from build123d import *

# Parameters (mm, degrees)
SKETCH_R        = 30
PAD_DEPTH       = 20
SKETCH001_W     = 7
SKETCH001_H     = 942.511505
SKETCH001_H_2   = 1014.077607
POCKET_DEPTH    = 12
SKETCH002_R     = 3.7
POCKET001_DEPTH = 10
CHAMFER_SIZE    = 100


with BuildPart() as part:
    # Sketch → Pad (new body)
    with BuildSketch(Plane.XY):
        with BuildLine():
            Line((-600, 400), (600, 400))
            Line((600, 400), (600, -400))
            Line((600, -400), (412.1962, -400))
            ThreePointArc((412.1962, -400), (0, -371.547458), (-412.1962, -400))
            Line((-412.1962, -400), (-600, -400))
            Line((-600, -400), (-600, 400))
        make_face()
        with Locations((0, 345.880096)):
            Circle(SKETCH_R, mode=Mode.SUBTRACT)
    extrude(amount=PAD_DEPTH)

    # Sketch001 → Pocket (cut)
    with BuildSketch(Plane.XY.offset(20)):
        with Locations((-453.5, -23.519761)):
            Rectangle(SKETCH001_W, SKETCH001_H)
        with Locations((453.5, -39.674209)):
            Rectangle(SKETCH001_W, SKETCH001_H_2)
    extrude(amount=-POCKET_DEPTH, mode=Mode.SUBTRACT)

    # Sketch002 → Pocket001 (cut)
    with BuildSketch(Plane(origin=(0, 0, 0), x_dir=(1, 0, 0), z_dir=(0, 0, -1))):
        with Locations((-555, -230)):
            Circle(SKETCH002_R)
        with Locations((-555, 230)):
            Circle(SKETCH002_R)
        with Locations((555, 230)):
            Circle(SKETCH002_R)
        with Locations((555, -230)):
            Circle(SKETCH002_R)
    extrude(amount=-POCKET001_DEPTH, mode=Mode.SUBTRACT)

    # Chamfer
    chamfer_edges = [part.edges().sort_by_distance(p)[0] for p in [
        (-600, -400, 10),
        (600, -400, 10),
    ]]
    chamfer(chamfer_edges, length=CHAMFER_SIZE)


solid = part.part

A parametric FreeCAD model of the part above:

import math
import FreeCAD as App
import Part
import Sketcher

V = App.Vector
Q = App.Units.Quantity


def edges_at(feature, points):
    """Names of the edges that pass closest to the given points."""
    edges = feature.Shape.Edges
    near = lambda p: min(range(len(edges)), key=lambda i: edges[i].distToShape(Part.Vertex(*p))[0])
    return sorted({f"Edge{near(p) + 1}" for p in points})

doc = App.newDocument("Part")
body = doc.addObject("PartDesign::Body", "Body")

# Sketch on XY plane
sketch1 = body.newObject("Sketcher::SketchObject", "Sketch")
sketch1.AttachmentSupport = (doc.getObject("XY_Plane"), [""])
sketch1.MapMode = "FlatFace"
sketch1.addGeometry(Part.LineSegment(V(600, 400, 0), V(-600, 400, 0)), False)
sketch1.addGeometry(Part.LineSegment(V(-600, 400, 0), V(-600, -400, 0)), False)
sketch1.addGeometry(Part.LineSegment(V(-600, -400, 0), V(-412, -400, 0)), False)
sketch1.addGeometry(Part.ArcOfCircle(Part.Circle(V(0, -3372, 0), V(0, 0, 1), 3000), math.radians(82.1), math.radians(97.9)), False)
sketch1.addGeometry(Part.LineSegment(V(412, -400, 0), V(600, -400, 0)), False)
sketch1.addGeometry(Part.LineSegment(V(600, -400, 0), V(600, 400, 0)), False)
sketch1.addGeometry(Part.Circle(V(0, 346, 0), V(0, 0, 1), 30), False)
sketch1.addConstraint(Sketcher.Constraint("Coincident", 0, 2, 1, 1))
sketch1.addConstraint(Sketcher.Constraint("Coincident", 1, 2, 2, 1))
sketch1.addConstraint(Sketcher.Constraint("Coincident", 2, 2, 3, 2))
sketch1.addConstraint(Sketcher.Constraint("Coincident", 3, 1, 4, 1))
sketch1.addConstraint(Sketcher.Constraint("Coincident", 4, 2, 5, 1))
sketch1.addConstraint(Sketcher.Constraint("Coincident", 5, 2, 0, 1))
sketch1.addConstraint(Sketcher.Constraint("Horizontal", 0))
sketch1.addConstraint(Sketcher.Constraint("Vertical", 1))
sketch1.addConstraint(Sketcher.Constraint("Horizontal", 2))
sketch1.addConstraint(Sketcher.Constraint("Horizontal", 4))
sketch1.addConstraint(Sketcher.Constraint("Vertical", 5))
sketch1.addConstraint(Sketcher.Constraint("Symmetric", 0, 2, 4, 2, -1, 1))
sketch1.addConstraint(Sketcher.Constraint("PointOnObject", 3, 3, -2))
sketch1.addConstraint(Sketcher.Constraint("PointOnObject", 6, 3, -2))
sketch1.addConstraint(Sketcher.Constraint("Equal", 2, 4))
sketch1.addConstraint(Sketcher.Constraint("Diameter", 6, Q("60 mm")))
sketch1.addConstraint(Sketcher.Constraint("DistanceX", 0, 2, 0, 1, Q("1200 mm")))
sketch1.addConstraint(Sketcher.Constraint("DistanceY", 1, 2, 1, 1, Q("800 mm")))
sketch1.addConstraint(Sketcher.Constraint("DistanceX", 2, 1, 2, 2, Q("187.8038 mm")))
sketch1.addConstraint(Sketcher.Constraint("Radius", 3, Q("3000.000043 mm")))
sketch1.addConstraint(Sketcher.Constraint("DistanceY", -1, 1, 6, 3, Q("345.880096 mm")))
pad1 = body.newObject("PartDesign::Pad", "Pad")
pad1.Profile = sketch1
pad1.Length = 20

# Sketch on XY plane
sketch2 = body.newObject("Sketcher::SketchObject", "Sketch001")
sketch2.AttachmentSupport = (doc.getObject("XY_Plane"), [""])
sketch2.MapMode = "FlatFace"
sketch2.AttachmentOffset = App.Placement(V(0, 0, 20), App.Rotation())
sketch2.addGeometry(Part.LineSegment(V(-457, 448, 0), V(-457, -495, 0)), False)
sketch2.addGeometry(Part.LineSegment(V(-457, -495, 0), V(-450, -495, 0)), False)
sketch2.addGeometry(Part.LineSegment(V(-450, -495, 0), V(-450, 448, 0)), False)
sketch2.addGeometry(Part.LineSegment(V(-450, 448, 0), V(-457, 448, 0)), False)
sketch2.addGeometry(Part.LineSegment(V(450, 467, 0), V(450, -547, 0)), False)
sketch2.addGeometry(Part.LineSegment(V(450, -547, 0), V(457, -547, 0)), False)
sketch2.addGeometry(Part.LineSegment(V(457, -547, 0), V(457, 467, 0)), False)
sketch2.addGeometry(Part.LineSegment(V(457, 467, 0), V(450, 467, 0)), False)
sketch2.addConstraint(Sketcher.Constraint("Coincident", 0, 2, 1, 1))
sketch2.addConstraint(Sketcher.Constraint("Coincident", 1, 2, 2, 1))
sketch2.addConstraint(Sketcher.Constraint("Coincident", 2, 2, 3, 1))
sketch2.addConstraint(Sketcher.Constraint("Coincident", 3, 2, 0, 1))
sketch2.addConstraint(Sketcher.Constraint("Coincident", 4, 2, 5, 1))
sketch2.addConstraint(Sketcher.Constraint("Coincident", 5, 2, 6, 1))
sketch2.addConstraint(Sketcher.Constraint("Coincident", 6, 2, 7, 1))
sketch2.addConstraint(Sketcher.Constraint("Coincident", 7, 2, 4, 1))
sketch2.addConstraint(Sketcher.Constraint("Vertical", 0))
sketch2.addConstraint(Sketcher.Constraint("Horizontal", 1))
sketch2.addConstraint(Sketcher.Constraint("Vertical", 2))
sketch2.addConstraint(Sketcher.Constraint("Horizontal", 3))
sketch2.addConstraint(Sketcher.Constraint("Vertical", 4))
sketch2.addConstraint(Sketcher.Constraint("Horizontal", 5))
sketch2.addConstraint(Sketcher.Constraint("Vertical", 6))
sketch2.addConstraint(Sketcher.Constraint("Horizontal", 7))
sketch2.addConstraint(Sketcher.Constraint("Equal", 3, 5))
sketch2.addConstraint(Sketcher.Constraint("DistanceX", 1, 1, 1, 2, Q("7 mm")))
sketch2.addConstraint(Sketcher.Constraint("DistanceX", 0, 2, -1, 1, Q("457 mm")))
sketch2.addConstraint(Sketcher.Constraint("DistanceX", -1, 1, 4, 2, Q("450 mm")))
sketch2.addConstraint(Sketcher.Constraint("DistanceY", 4, 2, 1, 2, Q("51.937499 mm")))
sketch2.addConstraint(Sketcher.Constraint("DistanceY", 0, 2, 0, 1, Q("942.511505 mm")))
sketch2.addConstraint(Sketcher.Constraint("DistanceY", 4, 2, 4, 1, Q("1014.077607 mm")))
sketch2.addConstraint(Sketcher.Constraint("DistanceY", -1, 1, 2, 2, Q("447.735992 mm")))
pocket1 = body.newObject("PartDesign::Pocket", "Pocket")
pocket1.Profile = sketch2
pocket1.Length = 12

# Sketch on XY plane
sketch3 = body.newObject("Sketcher::SketchObject", "Sketch002")
sketch3.AttachmentSupport = (doc.getObject("XY_Plane"), [""])
sketch3.MapMode = "FlatFace"
sketch3.addGeometry(Part.Circle(V(-555, 230, 0), V(0, 0, 1), 3.7), False)
sketch3.addGeometry(Part.Circle(V(-555, -230, 0), V(0, 0, 1), 3.7), False)
sketch3.addGeometry(Part.Circle(V(555, -230, 0), V(0, 0, 1), 3.7), False)
sketch3.addGeometry(Part.Circle(V(555, 230, 0), V(0, 0, 1), 3.7), False)
sketch3.addConstraint(Sketcher.Constraint("Equal", 0, 1))
sketch3.addConstraint(Sketcher.Constraint("Equal", 1, 2))
sketch3.addConstraint(Sketcher.Constraint("Equal", 2, 3))
sketch3.addConstraint(Sketcher.Constraint("Symmetric", 0, 3, 2, 3, -1, 1))
sketch3.addConstraint(Sketcher.Constraint("Symmetric", 1, 3, 3, 3, -1, 1))
sketch3.addConstraint(Sketcher.Constraint("Symmetric", 1, 3, 2, 3, -2))
sketch3.addConstraint(Sketcher.Constraint("Diameter", 0, Q("7.4 mm")))
sketch3.addConstraint(Sketcher.Constraint("DistanceX", 0, 3, -1, 1, Q("555 mm")))
sketch3.addConstraint(Sketcher.Constraint("DistanceY", -1, 1, 0, 3, Q("230 mm")))
pocket2 = body.newObject("PartDesign::Pocket", "Pocket001")
pocket2.Profile = sketch3
pocket2.Length = 10
pocket2.Reversed = True
doc.recompute()

chamfer = body.newObject("PartDesign::Chamfer", "Chamfer")
chamfer.Base = (pocket2, edges_at(pocket2, [(-600, -400, 10), (600, -400, 10)]))
chamfer.Size = 100

doc.recompute()
